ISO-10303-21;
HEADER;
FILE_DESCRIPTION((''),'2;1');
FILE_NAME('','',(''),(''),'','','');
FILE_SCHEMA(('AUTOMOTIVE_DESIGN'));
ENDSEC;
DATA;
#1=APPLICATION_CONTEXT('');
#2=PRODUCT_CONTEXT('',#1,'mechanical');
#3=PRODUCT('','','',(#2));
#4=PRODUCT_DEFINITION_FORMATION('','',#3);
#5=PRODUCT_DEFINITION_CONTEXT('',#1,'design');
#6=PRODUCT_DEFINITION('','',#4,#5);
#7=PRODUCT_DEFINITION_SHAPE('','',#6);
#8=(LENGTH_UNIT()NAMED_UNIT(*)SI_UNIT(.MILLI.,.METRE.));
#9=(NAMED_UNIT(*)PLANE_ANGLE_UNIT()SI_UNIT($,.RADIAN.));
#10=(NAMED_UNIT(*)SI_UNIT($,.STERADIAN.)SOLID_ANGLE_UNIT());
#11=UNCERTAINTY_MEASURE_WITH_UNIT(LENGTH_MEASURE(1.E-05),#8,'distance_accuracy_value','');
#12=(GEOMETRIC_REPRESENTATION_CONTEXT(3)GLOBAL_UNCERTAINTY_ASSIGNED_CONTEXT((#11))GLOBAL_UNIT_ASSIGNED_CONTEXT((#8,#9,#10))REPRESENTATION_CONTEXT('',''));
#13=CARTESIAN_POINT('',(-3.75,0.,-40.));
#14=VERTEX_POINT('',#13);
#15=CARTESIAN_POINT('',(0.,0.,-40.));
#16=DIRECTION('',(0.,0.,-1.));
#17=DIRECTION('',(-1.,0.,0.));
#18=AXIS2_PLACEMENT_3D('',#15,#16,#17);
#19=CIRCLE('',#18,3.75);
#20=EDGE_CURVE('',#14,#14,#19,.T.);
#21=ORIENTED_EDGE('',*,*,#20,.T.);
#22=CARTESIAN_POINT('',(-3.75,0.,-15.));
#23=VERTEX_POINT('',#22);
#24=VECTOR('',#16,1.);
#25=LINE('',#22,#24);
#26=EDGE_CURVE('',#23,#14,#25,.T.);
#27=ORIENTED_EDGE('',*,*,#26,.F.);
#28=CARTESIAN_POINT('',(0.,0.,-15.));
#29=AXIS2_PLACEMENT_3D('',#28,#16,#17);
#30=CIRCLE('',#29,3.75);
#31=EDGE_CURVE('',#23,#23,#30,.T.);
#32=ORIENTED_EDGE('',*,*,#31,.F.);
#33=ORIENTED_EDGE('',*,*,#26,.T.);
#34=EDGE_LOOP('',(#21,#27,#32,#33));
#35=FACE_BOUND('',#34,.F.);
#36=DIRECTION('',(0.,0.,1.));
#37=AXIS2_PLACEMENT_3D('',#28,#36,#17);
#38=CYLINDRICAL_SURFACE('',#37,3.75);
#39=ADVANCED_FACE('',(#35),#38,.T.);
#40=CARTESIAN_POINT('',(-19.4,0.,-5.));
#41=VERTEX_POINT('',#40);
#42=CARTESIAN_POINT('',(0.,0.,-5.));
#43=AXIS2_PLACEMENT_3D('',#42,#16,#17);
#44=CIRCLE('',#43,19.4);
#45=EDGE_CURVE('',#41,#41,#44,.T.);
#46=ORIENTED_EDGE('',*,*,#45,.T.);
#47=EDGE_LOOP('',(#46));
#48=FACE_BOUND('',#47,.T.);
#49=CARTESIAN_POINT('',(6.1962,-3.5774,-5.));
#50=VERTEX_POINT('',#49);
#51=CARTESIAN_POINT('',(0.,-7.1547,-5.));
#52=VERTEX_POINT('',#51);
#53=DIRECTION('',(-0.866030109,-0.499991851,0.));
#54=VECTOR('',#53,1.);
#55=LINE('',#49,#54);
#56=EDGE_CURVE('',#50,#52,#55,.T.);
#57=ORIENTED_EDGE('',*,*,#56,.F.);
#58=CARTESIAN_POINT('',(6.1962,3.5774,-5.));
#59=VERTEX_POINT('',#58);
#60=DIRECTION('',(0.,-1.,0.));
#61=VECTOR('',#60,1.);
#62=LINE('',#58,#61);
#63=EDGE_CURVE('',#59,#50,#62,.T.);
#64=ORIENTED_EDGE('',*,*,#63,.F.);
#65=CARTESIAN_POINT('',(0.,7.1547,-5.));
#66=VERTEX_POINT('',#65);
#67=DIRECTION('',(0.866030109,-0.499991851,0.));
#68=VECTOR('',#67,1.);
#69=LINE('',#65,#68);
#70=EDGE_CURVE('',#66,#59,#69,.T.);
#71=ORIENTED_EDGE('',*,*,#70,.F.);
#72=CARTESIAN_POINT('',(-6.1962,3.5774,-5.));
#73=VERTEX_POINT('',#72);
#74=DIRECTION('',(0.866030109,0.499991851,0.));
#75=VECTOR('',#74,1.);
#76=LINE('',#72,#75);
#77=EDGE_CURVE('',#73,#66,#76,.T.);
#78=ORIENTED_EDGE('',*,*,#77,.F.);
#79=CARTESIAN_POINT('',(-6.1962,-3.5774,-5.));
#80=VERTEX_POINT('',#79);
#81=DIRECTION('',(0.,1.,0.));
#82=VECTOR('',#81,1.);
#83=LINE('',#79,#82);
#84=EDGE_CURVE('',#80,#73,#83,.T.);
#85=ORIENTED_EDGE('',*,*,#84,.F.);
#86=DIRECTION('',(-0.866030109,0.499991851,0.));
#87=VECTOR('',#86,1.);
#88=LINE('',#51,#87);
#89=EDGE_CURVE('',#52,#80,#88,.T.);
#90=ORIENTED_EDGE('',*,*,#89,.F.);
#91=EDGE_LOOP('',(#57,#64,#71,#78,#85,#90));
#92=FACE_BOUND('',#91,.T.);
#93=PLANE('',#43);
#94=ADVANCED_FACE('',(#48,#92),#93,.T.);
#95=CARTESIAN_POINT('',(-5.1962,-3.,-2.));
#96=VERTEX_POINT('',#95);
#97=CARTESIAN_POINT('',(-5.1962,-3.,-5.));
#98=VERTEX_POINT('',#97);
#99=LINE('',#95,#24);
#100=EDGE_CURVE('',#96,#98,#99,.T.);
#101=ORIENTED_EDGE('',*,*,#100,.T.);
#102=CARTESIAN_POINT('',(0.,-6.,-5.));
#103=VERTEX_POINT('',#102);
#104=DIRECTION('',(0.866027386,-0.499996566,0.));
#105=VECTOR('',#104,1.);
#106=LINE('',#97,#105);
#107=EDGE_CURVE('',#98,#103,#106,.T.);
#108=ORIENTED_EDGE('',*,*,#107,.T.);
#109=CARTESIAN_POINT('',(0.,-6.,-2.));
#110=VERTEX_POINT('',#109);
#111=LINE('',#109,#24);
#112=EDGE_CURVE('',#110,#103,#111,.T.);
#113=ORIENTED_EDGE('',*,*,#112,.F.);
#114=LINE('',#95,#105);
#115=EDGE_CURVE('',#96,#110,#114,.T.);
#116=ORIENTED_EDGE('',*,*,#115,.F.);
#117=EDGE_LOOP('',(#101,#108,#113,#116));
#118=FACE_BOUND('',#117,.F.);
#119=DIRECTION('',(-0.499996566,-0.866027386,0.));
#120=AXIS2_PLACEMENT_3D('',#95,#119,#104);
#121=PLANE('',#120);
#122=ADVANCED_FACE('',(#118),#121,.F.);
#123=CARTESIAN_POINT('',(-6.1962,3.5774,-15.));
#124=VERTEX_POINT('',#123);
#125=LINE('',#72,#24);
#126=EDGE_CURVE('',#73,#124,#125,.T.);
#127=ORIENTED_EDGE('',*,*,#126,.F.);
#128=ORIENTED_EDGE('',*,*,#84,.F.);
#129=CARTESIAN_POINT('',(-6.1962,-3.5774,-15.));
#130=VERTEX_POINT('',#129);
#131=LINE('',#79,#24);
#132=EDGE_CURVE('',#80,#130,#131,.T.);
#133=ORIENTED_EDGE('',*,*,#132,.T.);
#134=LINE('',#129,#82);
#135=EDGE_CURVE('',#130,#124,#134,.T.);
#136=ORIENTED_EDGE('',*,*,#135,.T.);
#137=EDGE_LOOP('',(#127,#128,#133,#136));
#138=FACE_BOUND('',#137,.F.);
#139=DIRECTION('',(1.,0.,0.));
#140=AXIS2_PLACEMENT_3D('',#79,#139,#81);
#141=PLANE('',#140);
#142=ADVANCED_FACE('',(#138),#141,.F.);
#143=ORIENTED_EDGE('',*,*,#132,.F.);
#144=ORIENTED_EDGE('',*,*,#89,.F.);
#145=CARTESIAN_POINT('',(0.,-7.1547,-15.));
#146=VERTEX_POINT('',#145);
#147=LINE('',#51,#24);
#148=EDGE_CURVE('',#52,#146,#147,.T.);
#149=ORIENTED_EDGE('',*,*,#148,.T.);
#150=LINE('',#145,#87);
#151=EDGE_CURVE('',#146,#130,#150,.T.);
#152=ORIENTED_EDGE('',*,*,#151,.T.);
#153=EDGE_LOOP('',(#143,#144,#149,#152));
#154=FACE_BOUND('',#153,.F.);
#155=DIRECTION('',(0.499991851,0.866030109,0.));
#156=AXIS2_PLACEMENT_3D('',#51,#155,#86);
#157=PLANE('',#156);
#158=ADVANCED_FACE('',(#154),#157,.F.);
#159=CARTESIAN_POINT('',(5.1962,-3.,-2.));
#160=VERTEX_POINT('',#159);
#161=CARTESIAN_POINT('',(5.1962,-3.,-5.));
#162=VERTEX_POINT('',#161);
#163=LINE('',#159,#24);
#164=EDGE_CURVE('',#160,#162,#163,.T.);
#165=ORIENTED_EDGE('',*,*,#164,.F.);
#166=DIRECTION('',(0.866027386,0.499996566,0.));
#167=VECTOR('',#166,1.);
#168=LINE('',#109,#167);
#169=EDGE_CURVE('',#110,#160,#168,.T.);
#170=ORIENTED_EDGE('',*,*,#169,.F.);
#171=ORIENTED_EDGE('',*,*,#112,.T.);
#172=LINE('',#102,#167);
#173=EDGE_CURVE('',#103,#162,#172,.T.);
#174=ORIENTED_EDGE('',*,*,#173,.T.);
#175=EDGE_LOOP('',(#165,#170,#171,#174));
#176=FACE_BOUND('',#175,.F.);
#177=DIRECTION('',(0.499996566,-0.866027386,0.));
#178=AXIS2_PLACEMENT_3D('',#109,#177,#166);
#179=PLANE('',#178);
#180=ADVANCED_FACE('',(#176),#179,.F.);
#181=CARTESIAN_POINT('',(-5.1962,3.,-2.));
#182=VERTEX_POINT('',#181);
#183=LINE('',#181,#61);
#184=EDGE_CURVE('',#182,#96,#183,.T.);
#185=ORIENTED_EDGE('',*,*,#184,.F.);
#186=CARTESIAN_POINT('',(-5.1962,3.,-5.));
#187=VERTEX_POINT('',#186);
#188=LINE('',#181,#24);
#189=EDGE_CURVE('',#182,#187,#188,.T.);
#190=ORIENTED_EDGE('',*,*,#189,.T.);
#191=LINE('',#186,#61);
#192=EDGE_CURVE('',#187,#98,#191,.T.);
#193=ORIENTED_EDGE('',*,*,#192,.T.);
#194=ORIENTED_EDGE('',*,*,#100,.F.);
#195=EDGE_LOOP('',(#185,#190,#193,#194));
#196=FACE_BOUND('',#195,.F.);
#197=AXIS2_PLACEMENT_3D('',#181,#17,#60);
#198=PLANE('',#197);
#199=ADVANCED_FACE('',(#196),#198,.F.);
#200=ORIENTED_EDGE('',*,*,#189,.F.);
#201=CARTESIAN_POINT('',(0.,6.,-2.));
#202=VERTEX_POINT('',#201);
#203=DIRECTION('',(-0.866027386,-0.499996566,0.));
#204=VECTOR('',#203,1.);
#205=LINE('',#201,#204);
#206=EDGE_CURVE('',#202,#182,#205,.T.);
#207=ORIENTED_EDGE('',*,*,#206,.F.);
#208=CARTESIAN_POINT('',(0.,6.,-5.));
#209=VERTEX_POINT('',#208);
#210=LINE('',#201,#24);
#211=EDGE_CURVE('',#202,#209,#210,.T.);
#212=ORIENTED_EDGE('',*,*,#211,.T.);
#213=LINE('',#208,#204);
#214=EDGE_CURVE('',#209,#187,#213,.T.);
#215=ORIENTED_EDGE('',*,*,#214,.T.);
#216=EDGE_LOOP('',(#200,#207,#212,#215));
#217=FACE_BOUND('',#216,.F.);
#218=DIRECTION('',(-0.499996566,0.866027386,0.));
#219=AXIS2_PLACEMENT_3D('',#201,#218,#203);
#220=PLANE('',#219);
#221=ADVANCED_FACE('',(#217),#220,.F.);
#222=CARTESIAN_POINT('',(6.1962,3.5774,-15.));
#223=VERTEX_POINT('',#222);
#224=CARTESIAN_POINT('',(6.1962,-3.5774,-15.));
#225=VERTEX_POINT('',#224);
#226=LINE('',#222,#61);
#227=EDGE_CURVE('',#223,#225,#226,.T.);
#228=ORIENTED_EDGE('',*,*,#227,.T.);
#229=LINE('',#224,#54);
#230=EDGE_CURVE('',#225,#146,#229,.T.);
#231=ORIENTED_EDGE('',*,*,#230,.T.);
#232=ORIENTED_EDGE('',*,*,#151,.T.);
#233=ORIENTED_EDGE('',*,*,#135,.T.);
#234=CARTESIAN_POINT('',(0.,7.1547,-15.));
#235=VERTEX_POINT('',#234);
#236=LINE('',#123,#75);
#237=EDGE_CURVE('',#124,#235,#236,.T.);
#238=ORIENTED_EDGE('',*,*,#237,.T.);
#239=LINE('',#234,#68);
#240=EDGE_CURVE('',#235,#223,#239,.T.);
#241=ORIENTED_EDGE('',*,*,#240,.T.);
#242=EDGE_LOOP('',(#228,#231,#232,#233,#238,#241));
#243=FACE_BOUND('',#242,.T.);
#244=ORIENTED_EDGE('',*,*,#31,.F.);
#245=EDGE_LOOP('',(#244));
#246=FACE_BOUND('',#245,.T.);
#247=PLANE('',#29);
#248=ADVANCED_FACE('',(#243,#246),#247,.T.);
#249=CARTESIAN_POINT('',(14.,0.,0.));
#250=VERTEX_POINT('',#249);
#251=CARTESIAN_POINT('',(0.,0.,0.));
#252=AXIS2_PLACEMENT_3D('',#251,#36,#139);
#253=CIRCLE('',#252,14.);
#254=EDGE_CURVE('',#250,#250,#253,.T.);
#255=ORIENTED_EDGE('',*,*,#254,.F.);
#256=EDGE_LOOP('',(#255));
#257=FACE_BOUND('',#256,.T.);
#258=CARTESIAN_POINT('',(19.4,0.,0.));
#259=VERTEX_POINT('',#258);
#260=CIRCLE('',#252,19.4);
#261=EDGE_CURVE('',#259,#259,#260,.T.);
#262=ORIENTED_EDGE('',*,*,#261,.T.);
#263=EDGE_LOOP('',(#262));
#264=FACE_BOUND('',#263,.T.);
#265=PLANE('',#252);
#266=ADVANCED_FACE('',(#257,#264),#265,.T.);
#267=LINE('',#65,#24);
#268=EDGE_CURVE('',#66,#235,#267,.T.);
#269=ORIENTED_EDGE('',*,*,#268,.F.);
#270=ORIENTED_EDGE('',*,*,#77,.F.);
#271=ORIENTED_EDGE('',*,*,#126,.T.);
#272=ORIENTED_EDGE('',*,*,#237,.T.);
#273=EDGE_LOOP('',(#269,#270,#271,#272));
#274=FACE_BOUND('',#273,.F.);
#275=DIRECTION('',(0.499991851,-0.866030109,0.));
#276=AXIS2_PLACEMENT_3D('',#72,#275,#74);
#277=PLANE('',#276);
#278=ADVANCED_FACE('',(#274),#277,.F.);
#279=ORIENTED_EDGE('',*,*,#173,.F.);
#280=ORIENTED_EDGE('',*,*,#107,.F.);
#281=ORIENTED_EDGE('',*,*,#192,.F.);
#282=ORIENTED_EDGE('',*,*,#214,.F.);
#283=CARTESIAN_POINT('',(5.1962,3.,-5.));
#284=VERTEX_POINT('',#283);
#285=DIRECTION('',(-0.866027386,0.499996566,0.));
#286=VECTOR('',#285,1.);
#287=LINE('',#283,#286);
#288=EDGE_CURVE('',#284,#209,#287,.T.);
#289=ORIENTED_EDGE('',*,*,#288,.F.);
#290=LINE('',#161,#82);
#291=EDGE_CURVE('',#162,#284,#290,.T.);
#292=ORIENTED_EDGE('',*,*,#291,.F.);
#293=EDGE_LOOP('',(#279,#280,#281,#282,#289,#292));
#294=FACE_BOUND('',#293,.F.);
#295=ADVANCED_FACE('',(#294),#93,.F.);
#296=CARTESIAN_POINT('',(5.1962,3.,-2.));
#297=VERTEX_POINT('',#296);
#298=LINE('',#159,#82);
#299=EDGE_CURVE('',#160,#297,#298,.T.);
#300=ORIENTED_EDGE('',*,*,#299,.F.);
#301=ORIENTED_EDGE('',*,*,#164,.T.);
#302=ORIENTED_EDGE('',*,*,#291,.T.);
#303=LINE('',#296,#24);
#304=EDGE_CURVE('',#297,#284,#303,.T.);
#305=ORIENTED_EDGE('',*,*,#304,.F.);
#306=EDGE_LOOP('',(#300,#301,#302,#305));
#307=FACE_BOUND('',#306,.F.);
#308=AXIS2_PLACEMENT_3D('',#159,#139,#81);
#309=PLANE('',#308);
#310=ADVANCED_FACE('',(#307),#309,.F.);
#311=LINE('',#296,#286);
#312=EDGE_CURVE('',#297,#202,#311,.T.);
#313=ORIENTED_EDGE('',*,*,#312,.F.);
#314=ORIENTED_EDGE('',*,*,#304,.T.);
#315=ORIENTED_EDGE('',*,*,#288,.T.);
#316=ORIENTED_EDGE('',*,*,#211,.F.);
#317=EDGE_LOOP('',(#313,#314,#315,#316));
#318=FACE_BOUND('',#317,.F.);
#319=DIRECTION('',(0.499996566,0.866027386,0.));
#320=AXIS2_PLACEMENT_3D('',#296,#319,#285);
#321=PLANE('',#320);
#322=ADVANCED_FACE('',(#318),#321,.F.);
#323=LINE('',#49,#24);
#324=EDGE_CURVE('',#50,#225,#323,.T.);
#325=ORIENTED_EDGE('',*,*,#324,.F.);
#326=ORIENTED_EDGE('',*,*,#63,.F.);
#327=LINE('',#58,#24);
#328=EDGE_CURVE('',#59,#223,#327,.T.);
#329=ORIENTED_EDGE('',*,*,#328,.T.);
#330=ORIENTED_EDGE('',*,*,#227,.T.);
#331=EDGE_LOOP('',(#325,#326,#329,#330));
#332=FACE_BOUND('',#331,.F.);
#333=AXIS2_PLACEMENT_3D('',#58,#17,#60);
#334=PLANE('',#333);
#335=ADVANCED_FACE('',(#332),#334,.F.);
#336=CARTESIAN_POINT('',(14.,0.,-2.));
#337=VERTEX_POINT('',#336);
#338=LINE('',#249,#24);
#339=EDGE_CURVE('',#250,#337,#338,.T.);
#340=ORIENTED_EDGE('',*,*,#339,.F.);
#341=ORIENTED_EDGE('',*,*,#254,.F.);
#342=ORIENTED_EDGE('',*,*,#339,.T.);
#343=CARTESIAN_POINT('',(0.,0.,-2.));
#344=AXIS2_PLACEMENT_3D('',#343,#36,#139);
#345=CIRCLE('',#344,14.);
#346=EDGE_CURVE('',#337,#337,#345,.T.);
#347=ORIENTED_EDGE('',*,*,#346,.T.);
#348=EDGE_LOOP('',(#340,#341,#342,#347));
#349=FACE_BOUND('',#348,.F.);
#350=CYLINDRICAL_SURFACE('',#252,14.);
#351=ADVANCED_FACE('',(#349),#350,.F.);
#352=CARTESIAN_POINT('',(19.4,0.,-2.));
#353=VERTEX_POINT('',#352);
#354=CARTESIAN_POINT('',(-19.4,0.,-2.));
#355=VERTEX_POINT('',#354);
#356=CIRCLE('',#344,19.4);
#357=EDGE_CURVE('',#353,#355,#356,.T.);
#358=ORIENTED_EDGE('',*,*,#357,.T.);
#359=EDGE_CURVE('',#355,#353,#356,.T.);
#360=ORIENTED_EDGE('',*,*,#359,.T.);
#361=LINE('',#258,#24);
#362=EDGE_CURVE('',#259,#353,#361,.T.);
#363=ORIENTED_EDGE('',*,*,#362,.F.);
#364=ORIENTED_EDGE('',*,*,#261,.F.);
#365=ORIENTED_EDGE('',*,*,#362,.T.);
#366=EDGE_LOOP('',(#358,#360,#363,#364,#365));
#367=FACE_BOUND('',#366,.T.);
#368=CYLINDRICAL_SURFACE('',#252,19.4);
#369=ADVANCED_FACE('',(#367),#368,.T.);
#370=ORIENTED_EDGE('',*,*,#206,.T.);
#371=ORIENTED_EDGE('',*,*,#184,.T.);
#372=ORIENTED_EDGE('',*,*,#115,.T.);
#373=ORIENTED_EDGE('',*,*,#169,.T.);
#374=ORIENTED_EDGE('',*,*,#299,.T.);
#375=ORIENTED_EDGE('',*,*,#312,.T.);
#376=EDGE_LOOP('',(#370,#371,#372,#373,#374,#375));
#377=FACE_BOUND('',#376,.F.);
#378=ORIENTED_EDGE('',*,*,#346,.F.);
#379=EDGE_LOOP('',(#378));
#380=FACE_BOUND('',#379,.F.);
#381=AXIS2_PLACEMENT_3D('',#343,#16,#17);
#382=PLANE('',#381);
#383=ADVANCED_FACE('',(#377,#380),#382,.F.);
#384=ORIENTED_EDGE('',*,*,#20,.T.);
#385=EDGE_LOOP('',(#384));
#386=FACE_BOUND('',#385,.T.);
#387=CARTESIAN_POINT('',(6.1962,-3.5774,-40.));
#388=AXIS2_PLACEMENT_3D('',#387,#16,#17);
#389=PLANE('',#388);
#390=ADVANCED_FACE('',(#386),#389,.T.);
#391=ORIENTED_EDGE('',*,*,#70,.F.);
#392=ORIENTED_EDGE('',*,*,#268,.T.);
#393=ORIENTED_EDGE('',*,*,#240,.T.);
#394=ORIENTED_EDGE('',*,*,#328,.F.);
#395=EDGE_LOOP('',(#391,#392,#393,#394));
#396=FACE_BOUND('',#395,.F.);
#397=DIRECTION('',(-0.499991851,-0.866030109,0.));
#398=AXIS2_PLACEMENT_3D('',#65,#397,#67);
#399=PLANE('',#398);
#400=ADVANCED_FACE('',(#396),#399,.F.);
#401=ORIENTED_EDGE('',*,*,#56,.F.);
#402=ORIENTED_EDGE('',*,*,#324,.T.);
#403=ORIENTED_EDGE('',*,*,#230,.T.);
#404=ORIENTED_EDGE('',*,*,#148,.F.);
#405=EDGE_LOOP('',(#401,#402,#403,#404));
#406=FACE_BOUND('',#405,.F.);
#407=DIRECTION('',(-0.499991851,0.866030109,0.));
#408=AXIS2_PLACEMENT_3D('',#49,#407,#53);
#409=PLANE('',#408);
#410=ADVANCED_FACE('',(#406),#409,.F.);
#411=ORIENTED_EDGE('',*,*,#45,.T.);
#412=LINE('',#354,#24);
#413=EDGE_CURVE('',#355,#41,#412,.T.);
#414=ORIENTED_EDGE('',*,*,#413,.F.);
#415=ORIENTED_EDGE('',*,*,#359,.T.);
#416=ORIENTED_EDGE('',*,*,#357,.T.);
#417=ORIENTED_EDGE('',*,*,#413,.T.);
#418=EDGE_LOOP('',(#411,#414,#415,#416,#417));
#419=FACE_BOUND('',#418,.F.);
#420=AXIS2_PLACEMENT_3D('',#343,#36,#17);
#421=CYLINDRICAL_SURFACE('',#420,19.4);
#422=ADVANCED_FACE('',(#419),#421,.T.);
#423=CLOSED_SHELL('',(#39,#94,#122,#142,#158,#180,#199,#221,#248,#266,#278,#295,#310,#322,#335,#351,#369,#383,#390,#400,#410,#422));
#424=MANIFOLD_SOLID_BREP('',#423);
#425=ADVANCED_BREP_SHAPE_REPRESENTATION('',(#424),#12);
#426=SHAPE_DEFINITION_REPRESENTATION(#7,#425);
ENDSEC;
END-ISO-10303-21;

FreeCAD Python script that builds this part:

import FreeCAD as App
import Part
import Sketcher
Q = App.Units.Quantity

doc = App.newDocument("Part")
body = doc.addObject("PartDesign::Body", "Body")

# Sketch on XY plane
sketch1 = body.newObject("Sketcher::SketchObject", "Sketch")
sketch1.AttachmentSupport = (doc.getObject("XY_Plane"), [""])
sketch1.MapMode = "FlatFace"
sketch1.addGeometry([
    Part.Circle(App.Vector(0, 0, 0), App.Vector(0, 0, 1), 19),
    Part.Circle(App.Vector(0, 0, 0), App.Vector(0, 0, 1), 14),
], False)
sketch1.addConstraint([
    Sketcher.Constraint("Coincident", 0, 3, -1, 1),
    Sketcher.Constraint("Coincident", 1, 3, -1, 1),
    Sketcher.Constraint("Diameter", 1, 28.0),
    Sketcher.Constraint("Diameter", 0, 38.8),
])
pad1 = body.newObject("PartDesign::Pad", "Pad")
pad1.Profile = sketch1
pad1.Length = 2
pad1.Reversed = True

# Sketch on XY plane
sketch2 = body.newObject("Sketcher::SketchObject", "Sketch001")
sketch2.AttachmentSupport = (doc.getObject("XY_Plane"), [""])
sketch2.MapMode = "FlatFace"
sketch2.AttachmentOffset = App.Placement(App.Vector(0, 0, -2), App.Rotation())
sketch2.addGeometry([
    Part.Circle(App.Vector(0, 0, 0), App.Vector(0, 0, 1), 19),  # 0
    Part.LineSegment(App.Vector(0, -6, 0), App.Vector(5, -3, 0)),  # 1
    Part.LineSegment(App.Vector(5, -3, 0), App.Vector(5, 3, 0)),  # 2
    Part.LineSegment(App.Vector(5, 3, 0), App.Vector(0, 6, 0)),  # 3
    Part.LineSegment(App.Vector(0, 6, 0), App.Vector(-5, 3, 0)),  # 4
    Part.LineSegment(App.Vector(-5, 3, 0), App.Vector(-5, -3, 0)),  # 5
    Part.LineSegment(App.Vector(-5, -3, 0), App.Vector(0, -6, 0)),  # 6
], False)
sketch2.addConstraint([
    Sketcher.Constraint("Coincident", 1, 2, 2, 1),
    Sketcher.Constraint("Coincident", 2, 2, 3, 1),
    Sketcher.Constraint("Coincident", 3, 2, 4, 1),
    Sketcher.Constraint("Coincident", 4, 2, 5, 1),
    Sketcher.Constraint("Coincident", 5, 2, 6, 1),
    Sketcher.Constraint("Coincident", 6, 2, 1, 1),
    Sketcher.Constraint("Vertical", 2),
    Sketcher.Constraint("Vertical", 5),
    Sketcher.Constraint("Coincident", 0, 3, -1, 1),
    Sketcher.Constraint("Symmetric", 1, 2, 4, 2, -1, 1),
    Sketcher.Constraint("Symmetric", 3, 2, 6, 2, -1, 1),
    Sketcher.Constraint("PointOnObject", 3, 2, -2),
    Sketcher.Constraint("Parallel", 3, 6),
    Sketcher.Constraint("Horizontal", 2, 2, 4, 2),
    Sketcher.Constraint("DistanceY", 2, 1, 2, 2, 6.0),
    Sketcher.Constraint("Distance", 1, 6.0),
    Sketcher.Constraint("DistanceY", -1, 1, 3, 2, 6.0),
    Sketcher.Constraint("Diameter", 0, 38.8),
])
pad2 = body.newObject("PartDesign::Pad", "Pad001")
pad2.Profile = sketch2
pad2.Length = 3
pad2.Reversed = True

# Sketch on XY plane
sketch3 = body.newObject("Sketcher::SketchObject", "Sketch002")
sketch3.AttachmentSupport = (doc.getObject("XY_Plane"), [""])
sketch3.MapMode = "FlatFace"
sketch3.AttachmentOffset = App.Placement(App.Vector(0, 0, -5), App.Rotation())
sketch3.addGeometry([
    Part.LineSegment(App.Vector(0, 7, 0), App.Vector(6, 4, 0)),  # 0
    Part.LineSegment(App.Vector(6, 4, 0), App.Vector(6, -4, 0)),  # 1
    Part.LineSegment(App.Vector(6, -4, 0), App.Vector(0, -7, 0)),  # 2
    Part.LineSegment(App.Vector(0, -7, 0), App.Vector(-6, -4, 0)),  # 3
    Part.LineSegment(App.Vector(-6, -4, 0), App.Vector(-6, 4, 0)),  # 4
    Part.LineSegment(App.Vector(-6, 4, 0), App.Vector(0, 7, 0)),  # 5
], False)
sketch3.addConstraint([
    Sketcher.Constraint("Coincident", 0, 2, 1, 1),
    Sketcher.Constraint("Coincident", 1, 2, 2, 1),
    Sketcher.Constraint("Coincident", 2, 2, 3, 1),
    Sketcher.Constraint("Coincident", 3, 2, 4, 1),
    Sketcher.Constraint("Coincident", 4, 2, 5, 1),
    Sketcher.Constraint("Coincident", 5, 2, 0, 1),
    Sketcher.Constraint("Vertical", 1),
    Sketcher.Constraint("Vertical", 4),
    Sketcher.Constraint("Symmetric", 0, 2, 3, 2, -1, 1),
    Sketcher.Constraint("Symmetric", 2, 2, 5, 2, -1, 1),
    Sketcher.Constraint("PointOnObject", 2, 2, -2),
    Sketcher.Constraint("Parallel", 2, 5),
    Sketcher.Constraint("Horizontal", 1, 2, 3, 2),
    Sketcher.Constraint("Angle", 0, Q("-29.9995 deg")),
    Sketcher.Constraint("DistanceY", 1, 2, 1, 1, 7.1548),
    Sketcher.Constraint("DistanceY", 2, 2, 0, 2, 10.732),
])
pad3 = body.newObject("PartDesign::Pad", "Pad002")
pad3.Profile = sketch3
pad3.Length = 10
pad3.Reversed = True

# Sketch on XY plane
sketch4 = body.newObject("Sketcher::SketchObject", "Sketch003")
sketch4.AttachmentSupport = (doc.getObject("XY_Plane"), [""])
sketch4.MapMode = "FlatFace"
sketch4.AttachmentOffset = App.Placement(App.Vector(0, 0, -15), App.Rotation())
sketch4.addGeometry(Part.Circle(App.Vector(0, 0, 0), App.Vector(0, 0, 1), 3.8), False)
sketch4.addConstraint([
    Sketcher.Constraint("Coincident", 0, 3, -1, 1),
    Sketcher.Constraint("Diameter", 0, 7.5),
])
pad4 = body.newObject("PartDesign::Pad", "Pad003")
pad4.Profile = sketch4
pad4.Length = 25
pad4.Reversed = True

doc.recompute()
